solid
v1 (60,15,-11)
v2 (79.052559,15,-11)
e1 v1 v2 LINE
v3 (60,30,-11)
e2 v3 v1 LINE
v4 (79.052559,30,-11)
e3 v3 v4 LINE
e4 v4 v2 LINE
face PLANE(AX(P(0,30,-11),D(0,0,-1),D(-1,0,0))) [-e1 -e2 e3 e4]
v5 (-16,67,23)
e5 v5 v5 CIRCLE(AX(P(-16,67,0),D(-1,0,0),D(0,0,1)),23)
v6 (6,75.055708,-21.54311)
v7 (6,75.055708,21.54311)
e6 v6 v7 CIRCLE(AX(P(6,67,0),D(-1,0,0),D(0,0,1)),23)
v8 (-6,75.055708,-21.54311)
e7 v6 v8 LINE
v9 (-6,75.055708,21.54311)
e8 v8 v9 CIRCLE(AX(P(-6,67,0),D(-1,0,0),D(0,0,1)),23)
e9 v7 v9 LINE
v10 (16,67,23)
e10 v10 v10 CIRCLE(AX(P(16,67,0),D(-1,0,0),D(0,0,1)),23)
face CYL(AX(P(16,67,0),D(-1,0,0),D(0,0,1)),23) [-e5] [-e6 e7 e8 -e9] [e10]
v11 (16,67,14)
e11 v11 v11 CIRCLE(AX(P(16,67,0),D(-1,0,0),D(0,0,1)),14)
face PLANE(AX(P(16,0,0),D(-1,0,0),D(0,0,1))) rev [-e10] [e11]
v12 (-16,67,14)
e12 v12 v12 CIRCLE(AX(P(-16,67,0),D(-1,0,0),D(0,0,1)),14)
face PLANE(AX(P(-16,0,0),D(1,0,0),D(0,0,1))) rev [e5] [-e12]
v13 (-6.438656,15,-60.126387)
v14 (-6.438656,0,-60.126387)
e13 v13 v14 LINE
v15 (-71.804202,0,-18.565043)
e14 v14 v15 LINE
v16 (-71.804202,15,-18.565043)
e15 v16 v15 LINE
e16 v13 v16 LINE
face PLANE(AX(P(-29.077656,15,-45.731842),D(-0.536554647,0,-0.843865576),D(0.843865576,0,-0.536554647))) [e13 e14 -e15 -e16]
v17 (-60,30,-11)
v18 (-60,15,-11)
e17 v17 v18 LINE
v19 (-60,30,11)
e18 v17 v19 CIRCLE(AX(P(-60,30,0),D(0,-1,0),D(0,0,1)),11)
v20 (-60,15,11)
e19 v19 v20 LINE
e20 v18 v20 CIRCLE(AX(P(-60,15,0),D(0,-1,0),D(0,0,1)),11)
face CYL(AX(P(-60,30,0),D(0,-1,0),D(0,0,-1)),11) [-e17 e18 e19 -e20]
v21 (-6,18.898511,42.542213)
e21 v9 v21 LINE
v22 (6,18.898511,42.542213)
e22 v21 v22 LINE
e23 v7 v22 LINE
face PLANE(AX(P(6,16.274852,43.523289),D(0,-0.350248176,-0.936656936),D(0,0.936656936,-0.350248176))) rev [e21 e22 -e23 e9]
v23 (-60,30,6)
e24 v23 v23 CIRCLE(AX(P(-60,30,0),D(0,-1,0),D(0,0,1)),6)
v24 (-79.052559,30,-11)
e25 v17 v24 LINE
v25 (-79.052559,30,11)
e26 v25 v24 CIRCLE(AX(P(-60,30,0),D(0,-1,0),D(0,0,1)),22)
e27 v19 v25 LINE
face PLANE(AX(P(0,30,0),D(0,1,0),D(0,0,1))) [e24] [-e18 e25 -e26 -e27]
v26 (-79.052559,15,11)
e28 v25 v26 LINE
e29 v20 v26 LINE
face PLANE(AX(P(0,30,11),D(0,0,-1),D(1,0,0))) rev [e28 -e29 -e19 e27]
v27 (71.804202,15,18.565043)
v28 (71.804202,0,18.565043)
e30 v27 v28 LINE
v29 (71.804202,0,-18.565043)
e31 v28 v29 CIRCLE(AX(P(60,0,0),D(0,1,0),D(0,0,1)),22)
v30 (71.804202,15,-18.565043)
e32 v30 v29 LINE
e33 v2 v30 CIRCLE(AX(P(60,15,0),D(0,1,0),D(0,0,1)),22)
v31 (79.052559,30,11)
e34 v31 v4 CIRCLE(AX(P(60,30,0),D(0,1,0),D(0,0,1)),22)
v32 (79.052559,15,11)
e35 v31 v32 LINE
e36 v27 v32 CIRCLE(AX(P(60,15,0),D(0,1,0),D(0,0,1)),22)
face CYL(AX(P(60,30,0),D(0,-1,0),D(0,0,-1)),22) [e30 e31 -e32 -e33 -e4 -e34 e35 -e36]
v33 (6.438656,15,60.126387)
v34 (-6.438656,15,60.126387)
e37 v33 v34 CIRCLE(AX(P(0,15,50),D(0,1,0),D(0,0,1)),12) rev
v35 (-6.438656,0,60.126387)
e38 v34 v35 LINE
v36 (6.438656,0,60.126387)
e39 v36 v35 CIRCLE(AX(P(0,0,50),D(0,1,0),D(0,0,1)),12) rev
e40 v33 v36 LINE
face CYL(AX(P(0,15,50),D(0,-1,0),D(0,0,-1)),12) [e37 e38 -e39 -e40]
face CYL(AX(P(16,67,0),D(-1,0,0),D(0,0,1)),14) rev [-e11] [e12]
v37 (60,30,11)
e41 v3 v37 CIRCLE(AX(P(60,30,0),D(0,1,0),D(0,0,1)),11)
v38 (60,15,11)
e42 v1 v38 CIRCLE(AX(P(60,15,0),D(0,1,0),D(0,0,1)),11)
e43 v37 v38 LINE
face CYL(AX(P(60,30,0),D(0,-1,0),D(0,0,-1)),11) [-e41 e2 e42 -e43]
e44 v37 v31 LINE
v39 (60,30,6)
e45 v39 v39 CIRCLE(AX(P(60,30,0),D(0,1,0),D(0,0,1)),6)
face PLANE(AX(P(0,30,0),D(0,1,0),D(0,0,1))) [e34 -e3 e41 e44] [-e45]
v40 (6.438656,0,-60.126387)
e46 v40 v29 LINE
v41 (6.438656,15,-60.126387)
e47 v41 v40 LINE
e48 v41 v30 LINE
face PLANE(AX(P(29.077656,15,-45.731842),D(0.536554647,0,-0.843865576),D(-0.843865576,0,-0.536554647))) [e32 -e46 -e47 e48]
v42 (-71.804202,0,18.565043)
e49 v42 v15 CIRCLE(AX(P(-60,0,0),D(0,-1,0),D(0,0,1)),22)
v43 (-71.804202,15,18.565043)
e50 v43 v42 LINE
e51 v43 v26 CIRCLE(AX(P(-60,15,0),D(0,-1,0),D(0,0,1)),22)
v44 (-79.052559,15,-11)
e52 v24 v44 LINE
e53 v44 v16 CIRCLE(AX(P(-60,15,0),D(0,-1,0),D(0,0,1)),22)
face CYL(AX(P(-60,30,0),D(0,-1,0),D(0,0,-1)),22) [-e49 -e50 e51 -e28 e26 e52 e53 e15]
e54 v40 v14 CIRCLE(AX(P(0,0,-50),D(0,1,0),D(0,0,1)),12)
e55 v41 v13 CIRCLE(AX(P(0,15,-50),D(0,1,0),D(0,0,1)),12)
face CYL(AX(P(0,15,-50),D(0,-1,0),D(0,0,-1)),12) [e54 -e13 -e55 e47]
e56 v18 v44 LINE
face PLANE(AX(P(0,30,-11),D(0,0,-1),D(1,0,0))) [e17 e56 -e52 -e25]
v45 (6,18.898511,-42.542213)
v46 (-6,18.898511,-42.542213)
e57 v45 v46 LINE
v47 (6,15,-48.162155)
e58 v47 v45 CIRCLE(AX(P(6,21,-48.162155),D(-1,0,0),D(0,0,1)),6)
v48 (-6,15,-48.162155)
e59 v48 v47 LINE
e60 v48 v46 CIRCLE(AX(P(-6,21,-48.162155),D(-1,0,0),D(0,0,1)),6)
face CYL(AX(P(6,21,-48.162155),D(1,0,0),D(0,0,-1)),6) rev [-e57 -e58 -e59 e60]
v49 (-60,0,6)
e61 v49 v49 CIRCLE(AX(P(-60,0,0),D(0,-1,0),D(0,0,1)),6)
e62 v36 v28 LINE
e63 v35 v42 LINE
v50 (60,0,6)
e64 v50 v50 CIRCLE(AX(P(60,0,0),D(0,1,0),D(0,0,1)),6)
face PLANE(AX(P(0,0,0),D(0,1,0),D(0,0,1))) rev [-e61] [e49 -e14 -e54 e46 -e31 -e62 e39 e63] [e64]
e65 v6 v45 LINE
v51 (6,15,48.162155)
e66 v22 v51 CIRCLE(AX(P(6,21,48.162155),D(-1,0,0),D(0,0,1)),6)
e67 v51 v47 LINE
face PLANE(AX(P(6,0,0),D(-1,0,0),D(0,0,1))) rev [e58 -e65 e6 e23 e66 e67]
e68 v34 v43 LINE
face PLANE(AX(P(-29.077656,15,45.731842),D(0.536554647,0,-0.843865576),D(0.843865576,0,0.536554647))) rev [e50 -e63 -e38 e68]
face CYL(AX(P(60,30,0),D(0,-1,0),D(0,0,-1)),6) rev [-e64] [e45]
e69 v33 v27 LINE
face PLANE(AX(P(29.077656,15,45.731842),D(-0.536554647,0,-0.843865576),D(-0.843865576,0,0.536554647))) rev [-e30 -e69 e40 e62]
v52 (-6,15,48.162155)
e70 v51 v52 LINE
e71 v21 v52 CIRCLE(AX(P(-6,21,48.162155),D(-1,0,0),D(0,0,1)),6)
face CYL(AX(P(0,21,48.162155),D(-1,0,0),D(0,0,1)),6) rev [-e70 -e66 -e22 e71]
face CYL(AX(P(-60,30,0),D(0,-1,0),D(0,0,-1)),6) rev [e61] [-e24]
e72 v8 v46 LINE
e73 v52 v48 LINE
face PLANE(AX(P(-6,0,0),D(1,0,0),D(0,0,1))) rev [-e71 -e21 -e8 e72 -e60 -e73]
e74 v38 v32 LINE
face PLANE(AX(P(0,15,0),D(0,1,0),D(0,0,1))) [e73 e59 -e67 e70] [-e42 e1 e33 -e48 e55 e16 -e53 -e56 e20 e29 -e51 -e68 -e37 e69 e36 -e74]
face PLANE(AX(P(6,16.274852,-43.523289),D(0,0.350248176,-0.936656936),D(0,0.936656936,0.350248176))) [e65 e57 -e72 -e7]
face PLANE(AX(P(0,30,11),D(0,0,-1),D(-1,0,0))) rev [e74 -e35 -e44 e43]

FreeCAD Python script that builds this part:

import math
import FreeCAD as App
import Part
import Sketcher

V = App.Vector
Q = App.Units.Quantity


def edges_at(feature, points):
    """Names of the edges that pass closest to the given points."""
    edges = feature.Shape.Edges
    near = lambda p: min(range(len(edges)), key=lambda i: edges[i].distToShape(Part.Vertex(*p))[0])
    return sorted({f"Edge{near(p) + 1}" for p in points})

doc = App.newDocument("Part")
body = doc.addObject("PartDesign::Body", "Body")

# Sketch on XZ plane
sketch1 = body.newObject("Sketcher::SketchObject", "Sketch")
sketch1.AttachmentSupport = (doc.getObject("XZ_Plane"), [""])
sketch1.MapMode = "FlatFace"
sketch1.addGeometry([
    Part.ArcOfCircle(Part.Circle(V(60, 0, 0), V(0, 0, 1), 22), math.radians(-30), math.radians(30)),  # 0
    Part.LineSegment(V(79, -11, 0), V(60, -11, 0)),  # 1
    Part.ArcOfCircle(Part.Circle(V(60, 0, 0), V(0, 0, 1), 11), math.radians(90), math.radians(270)),  # 2
    Part.LineSegment(V(60, 11, 0), V(79, 11, 0)),  # 3
    Part.Circle(V(60, 0, 0), V(0, 0, 1), 6),  # 4
], False)
sketch1.addConstraint([
    Sketcher.Constraint("Coincident", 0, 1, 1, 1),
    Sketcher.Constraint("Tangent", 1, 2, 2, 2),
    Sketcher.Constraint("Tangent", 2, 1, 3, 1),
    Sketcher.Constraint("Coincident", 3, 2, 0, 2),
    Sketcher.Constraint("Horizontal", 1),
    Sketcher.Constraint("Horizontal", 3),
    Sketcher.Constraint("Coincident", 2, 3, 0, 3),
    Sketcher.Constraint("Coincident", 4, 3, 0, 3),
    Sketcher.Constraint("PointOnObject", 0, 3, -1),
    Sketcher.Constraint("Diameter", 4, Q("12 mm")),
    Sketcher.Constraint("Radius", 0, Q("22 mm")),
    Sketcher.Constraint("Radius", 2, Q("11 mm")),
    Sketcher.Constraint("DistanceX", -1, 1, 0, 3, Q("60 mm")),
])
pad1 = body.newObject("PartDesign::Pad", "Pad")
pad1.Profile = sketch1
pad1.Length = 30
pad1.Reversed = True

# Sketch on XZ plane
sketch2 = body.newObject("Sketcher::SketchObject", "Sketch001")
sketch2.AttachmentSupport = (doc.getObject("XZ_Plane"), [""])
sketch2.MapMode = "FlatFace"
sketch2.addGeometry([
    Part.LineSegment(V(0, -62, 0), V(0, 62, 0)),  # 0
    Part.ArcOfCircle(Part.Circle(V(0, 50, 0), V(0, 0, 1), 12), math.radians(58), math.radians(90)),  # 1
    Part.LineSegment(V(6, 60, 0), V(72, 19, 0)),  # 2
    Part.ArcOfCircle(Part.Circle(V(60, 0, 0), V(0, 0, 1), 22), math.radians(-58), math.radians(58)),  # 3
    Part.LineSegment(V(72, -19, 0), V(6, -60, 0)),  # 4
    Part.ArcOfCircle(Part.Circle(V(0, -50, 0), V(0, 0, 1), 12), math.radians(-90), math.radians(-58)),  # 5
    Part.Circle(V(60, 0, 0), V(0, 0, 1), 6),  # 6
], False)
sketch2.addConstraint([
    Sketcher.Constraint("Coincident", 0, 2, 1, 2),
    Sketcher.Constraint("Tangent", 1, 1, 2, 1),
    Sketcher.Constraint("Tangent", 2, 2, 3, 2),
    Sketcher.Constraint("Tangent", 3, 1, 4, 1),
    Sketcher.Constraint("Tangent", 4, 2, 5, 2),
    Sketcher.Constraint("Coincident", 5, 1, 0, 1),
    Sketcher.Constraint("Vertical", 0),
    Sketcher.Constraint("Coincident", 6, 3, 3, 3),
    Sketcher.Constraint("Equal", 1, 5),
    Sketcher.Constraint("Symmetric", 1, 3, 5, 3, -1, 1),
    Sketcher.Constraint("Symmetric", 2, 2, 3, 1, -1),
    Sketcher.Constraint("PointOnObject", 0, 2, -2),
    Sketcher.Constraint("Diameter", 6, Q("12 mm")),
    Sketcher.Constraint("Radius", 1, Q("12 mm")),
    Sketcher.Constraint("Radius", 3, Q("22 mm")),
    Sketcher.Constraint("DistanceY", 0, 1, 0, 2, Q("124 mm")),
    Sketcher.Constraint("DistanceX", -1, 1, 3, 3, Q("60 mm")),
])
pad2 = body.newObject("PartDesign::Pad", "Pad001")
pad2.Profile = sketch2
pad2.Length = 15
pad2.Reversed = True

# Sketch on YZ plane
sketch3 = body.newObject("Sketcher::SketchObject", "Sketch002")
sketch3.AttachmentSupport = (doc.getObject("YZ_Plane"), [""])
sketch3.MapMode = "FlatFace"
sketch3.addGeometry([
    Part.LineSegment(V(15, 44, 0), V(75, 22, 0)),  # 0
    Part.ArcOfCircle(Part.Circle(V(67, 0, 0), V(0, 0, 1), 23), math.radians(69), math.radians(90)),  # 1
    Part.ArcOfCircle(Part.Circle(V(67, 0, 0), V(0, 0, 1), 23), math.radians(90), math.radians(291)),  # 2
    Part.LineSegment(V(75, -22, 0), V(15, -44, 0)),  # 3
    Part.LineSegment(V(15, -44, 0), V(15, 44, 0)),  # 4
], False)
sketch3.addConstraint([
    Sketcher.Constraint("Tangent", 0, 2, 1, 1),
    Sketcher.Constraint("Tangent", 1, 2, 2, 1),
    Sketcher.Constraint("Tangent", 2, 2, 3, 1),
    Sketcher.Constraint("Coincident", 3, 2, 4, 1),
    Sketcher.Constraint("Coincident", 4, 2, 0, 1),
    Sketcher.Constraint("Vertical", 4),
    Sketcher.Constraint("Equal", 1, 2),
    Sketcher.Constraint("Symmetric", 0, 2, 2, 2, -1),
    Sketcher.Constraint("Vertical", 2, 3, 1, 2),
    Sketcher.Constraint("Radius", 1, Q("23 mm")),
    Sketcher.Constraint("DistanceY", 4, 1, 4, 2, Q("88 mm")),
    Sketcher.Constraint("DistanceX", -1, 1, 1, 3, Q("67 mm")),
    Sketcher.Constraint("DistanceX", -1, 1, 3, 2, Q("15 mm")),
])
pad3 = body.newObject("PartDesign::Pad", "Pad002")
pad3.Profile = sketch3
pad3.Length = 6

# Sketch on YZ plane
sketch4 = body.newObject("Sketcher::SketchObject", "Sketch003")
sketch4.AttachmentSupport = (doc.getObject("YZ_Plane"), [""])
sketch4.MapMode = "FlatFace"
sketch4.addGeometry([
    Part.Circle(V(67, 0, 0), V(0, 0, 1), 23),
    Part.Circle(V(67, 0, 0), V(0, 0, 1), 14),
], False)
sketch4.addConstraint([
    Sketcher.Constraint("Coincident", 1, 3, 0, 3),
    Sketcher.Constraint("PointOnObject", 0, 3, -1),
    Sketcher.Constraint("Diameter", 0, Q("46 mm")),
    Sketcher.Constraint("Diameter", 1, Q("28 mm")),
    Sketcher.Constraint("DistanceX", -1, 1, 0, 3, Q("67 mm")),
])
pad4 = body.newObject("PartDesign::Pad", "Pad003")
pad4.Profile = sketch4
pad4.Length = 16
doc.recompute()

fillet = body.newObject("PartDesign::Fillet", "Fillet")
fillet.Base = (pad4, edges_at(pad4, [(3, 15, 44), (3, 15, -44)]))
fillet.Radius = 6
body2 = doc.addObject("PartDesign::Body", "Body001")
doc.recompute()

body2.BaseFeature = body
doc.recompute()

mirroring = doc.addObject("Part::Mirroring", "Mirroring")
mirroring.Source = body
mirroring.Base = V(0, 15, 0)
mirroring.Normal = V(1, 0, 0)
body3 = doc.addObject("PartDesign::Body", "Body002")
body3.BaseFeature = mirroring
boolean = body2.newObject("PartDesign::Boolean", "Boolean")
boolean.Type = "Fuse"
boolean.addObjects([body3])
doc.recompute()
mirroring.Visibility = False

doc.recompute()
